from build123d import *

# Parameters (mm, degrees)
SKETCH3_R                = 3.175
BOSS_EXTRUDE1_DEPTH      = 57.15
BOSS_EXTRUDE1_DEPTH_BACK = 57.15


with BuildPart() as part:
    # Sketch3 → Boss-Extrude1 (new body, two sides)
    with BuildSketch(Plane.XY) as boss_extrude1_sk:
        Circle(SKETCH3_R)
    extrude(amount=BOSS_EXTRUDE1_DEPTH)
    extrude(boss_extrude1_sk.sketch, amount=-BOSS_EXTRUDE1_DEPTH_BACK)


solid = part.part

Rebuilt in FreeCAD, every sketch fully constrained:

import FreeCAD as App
import Part
import Sketcher
Q = App.Units.Quantity

doc = App.newDocument("Part")
body = doc.addObject("PartDesign::Body", "Body")

# Sketch on XY plane
sketch1 = body.newObject("Sketcher::SketchObject", "Sketch")
sketch1.AttachmentSupport = (doc.getObject("XY_Plane"), [""])
sketch1.MapMode = "FlatFace"
sketch1.addGeometry(Part.Circle(App.Vector(0, 0, 0), App.Vector(0, 0, 1), 3.2), False)
sketch1.addConstraint(Sketcher.Constraint("Coincident", 0, 3, -1, 1))
sketch1.addConstraint(Sketcher.Constraint("Diameter", 0, Q("0.25 in")))
pad1 = body.newObject("PartDesign::Pad", "Pad")
pad1.Profile = sketch1
pad1.Type = "TwoLengths"
pad1.Length = Q("2.25 in")
pad1.Length2 = Q("2.25 in")

doc.recompute()
